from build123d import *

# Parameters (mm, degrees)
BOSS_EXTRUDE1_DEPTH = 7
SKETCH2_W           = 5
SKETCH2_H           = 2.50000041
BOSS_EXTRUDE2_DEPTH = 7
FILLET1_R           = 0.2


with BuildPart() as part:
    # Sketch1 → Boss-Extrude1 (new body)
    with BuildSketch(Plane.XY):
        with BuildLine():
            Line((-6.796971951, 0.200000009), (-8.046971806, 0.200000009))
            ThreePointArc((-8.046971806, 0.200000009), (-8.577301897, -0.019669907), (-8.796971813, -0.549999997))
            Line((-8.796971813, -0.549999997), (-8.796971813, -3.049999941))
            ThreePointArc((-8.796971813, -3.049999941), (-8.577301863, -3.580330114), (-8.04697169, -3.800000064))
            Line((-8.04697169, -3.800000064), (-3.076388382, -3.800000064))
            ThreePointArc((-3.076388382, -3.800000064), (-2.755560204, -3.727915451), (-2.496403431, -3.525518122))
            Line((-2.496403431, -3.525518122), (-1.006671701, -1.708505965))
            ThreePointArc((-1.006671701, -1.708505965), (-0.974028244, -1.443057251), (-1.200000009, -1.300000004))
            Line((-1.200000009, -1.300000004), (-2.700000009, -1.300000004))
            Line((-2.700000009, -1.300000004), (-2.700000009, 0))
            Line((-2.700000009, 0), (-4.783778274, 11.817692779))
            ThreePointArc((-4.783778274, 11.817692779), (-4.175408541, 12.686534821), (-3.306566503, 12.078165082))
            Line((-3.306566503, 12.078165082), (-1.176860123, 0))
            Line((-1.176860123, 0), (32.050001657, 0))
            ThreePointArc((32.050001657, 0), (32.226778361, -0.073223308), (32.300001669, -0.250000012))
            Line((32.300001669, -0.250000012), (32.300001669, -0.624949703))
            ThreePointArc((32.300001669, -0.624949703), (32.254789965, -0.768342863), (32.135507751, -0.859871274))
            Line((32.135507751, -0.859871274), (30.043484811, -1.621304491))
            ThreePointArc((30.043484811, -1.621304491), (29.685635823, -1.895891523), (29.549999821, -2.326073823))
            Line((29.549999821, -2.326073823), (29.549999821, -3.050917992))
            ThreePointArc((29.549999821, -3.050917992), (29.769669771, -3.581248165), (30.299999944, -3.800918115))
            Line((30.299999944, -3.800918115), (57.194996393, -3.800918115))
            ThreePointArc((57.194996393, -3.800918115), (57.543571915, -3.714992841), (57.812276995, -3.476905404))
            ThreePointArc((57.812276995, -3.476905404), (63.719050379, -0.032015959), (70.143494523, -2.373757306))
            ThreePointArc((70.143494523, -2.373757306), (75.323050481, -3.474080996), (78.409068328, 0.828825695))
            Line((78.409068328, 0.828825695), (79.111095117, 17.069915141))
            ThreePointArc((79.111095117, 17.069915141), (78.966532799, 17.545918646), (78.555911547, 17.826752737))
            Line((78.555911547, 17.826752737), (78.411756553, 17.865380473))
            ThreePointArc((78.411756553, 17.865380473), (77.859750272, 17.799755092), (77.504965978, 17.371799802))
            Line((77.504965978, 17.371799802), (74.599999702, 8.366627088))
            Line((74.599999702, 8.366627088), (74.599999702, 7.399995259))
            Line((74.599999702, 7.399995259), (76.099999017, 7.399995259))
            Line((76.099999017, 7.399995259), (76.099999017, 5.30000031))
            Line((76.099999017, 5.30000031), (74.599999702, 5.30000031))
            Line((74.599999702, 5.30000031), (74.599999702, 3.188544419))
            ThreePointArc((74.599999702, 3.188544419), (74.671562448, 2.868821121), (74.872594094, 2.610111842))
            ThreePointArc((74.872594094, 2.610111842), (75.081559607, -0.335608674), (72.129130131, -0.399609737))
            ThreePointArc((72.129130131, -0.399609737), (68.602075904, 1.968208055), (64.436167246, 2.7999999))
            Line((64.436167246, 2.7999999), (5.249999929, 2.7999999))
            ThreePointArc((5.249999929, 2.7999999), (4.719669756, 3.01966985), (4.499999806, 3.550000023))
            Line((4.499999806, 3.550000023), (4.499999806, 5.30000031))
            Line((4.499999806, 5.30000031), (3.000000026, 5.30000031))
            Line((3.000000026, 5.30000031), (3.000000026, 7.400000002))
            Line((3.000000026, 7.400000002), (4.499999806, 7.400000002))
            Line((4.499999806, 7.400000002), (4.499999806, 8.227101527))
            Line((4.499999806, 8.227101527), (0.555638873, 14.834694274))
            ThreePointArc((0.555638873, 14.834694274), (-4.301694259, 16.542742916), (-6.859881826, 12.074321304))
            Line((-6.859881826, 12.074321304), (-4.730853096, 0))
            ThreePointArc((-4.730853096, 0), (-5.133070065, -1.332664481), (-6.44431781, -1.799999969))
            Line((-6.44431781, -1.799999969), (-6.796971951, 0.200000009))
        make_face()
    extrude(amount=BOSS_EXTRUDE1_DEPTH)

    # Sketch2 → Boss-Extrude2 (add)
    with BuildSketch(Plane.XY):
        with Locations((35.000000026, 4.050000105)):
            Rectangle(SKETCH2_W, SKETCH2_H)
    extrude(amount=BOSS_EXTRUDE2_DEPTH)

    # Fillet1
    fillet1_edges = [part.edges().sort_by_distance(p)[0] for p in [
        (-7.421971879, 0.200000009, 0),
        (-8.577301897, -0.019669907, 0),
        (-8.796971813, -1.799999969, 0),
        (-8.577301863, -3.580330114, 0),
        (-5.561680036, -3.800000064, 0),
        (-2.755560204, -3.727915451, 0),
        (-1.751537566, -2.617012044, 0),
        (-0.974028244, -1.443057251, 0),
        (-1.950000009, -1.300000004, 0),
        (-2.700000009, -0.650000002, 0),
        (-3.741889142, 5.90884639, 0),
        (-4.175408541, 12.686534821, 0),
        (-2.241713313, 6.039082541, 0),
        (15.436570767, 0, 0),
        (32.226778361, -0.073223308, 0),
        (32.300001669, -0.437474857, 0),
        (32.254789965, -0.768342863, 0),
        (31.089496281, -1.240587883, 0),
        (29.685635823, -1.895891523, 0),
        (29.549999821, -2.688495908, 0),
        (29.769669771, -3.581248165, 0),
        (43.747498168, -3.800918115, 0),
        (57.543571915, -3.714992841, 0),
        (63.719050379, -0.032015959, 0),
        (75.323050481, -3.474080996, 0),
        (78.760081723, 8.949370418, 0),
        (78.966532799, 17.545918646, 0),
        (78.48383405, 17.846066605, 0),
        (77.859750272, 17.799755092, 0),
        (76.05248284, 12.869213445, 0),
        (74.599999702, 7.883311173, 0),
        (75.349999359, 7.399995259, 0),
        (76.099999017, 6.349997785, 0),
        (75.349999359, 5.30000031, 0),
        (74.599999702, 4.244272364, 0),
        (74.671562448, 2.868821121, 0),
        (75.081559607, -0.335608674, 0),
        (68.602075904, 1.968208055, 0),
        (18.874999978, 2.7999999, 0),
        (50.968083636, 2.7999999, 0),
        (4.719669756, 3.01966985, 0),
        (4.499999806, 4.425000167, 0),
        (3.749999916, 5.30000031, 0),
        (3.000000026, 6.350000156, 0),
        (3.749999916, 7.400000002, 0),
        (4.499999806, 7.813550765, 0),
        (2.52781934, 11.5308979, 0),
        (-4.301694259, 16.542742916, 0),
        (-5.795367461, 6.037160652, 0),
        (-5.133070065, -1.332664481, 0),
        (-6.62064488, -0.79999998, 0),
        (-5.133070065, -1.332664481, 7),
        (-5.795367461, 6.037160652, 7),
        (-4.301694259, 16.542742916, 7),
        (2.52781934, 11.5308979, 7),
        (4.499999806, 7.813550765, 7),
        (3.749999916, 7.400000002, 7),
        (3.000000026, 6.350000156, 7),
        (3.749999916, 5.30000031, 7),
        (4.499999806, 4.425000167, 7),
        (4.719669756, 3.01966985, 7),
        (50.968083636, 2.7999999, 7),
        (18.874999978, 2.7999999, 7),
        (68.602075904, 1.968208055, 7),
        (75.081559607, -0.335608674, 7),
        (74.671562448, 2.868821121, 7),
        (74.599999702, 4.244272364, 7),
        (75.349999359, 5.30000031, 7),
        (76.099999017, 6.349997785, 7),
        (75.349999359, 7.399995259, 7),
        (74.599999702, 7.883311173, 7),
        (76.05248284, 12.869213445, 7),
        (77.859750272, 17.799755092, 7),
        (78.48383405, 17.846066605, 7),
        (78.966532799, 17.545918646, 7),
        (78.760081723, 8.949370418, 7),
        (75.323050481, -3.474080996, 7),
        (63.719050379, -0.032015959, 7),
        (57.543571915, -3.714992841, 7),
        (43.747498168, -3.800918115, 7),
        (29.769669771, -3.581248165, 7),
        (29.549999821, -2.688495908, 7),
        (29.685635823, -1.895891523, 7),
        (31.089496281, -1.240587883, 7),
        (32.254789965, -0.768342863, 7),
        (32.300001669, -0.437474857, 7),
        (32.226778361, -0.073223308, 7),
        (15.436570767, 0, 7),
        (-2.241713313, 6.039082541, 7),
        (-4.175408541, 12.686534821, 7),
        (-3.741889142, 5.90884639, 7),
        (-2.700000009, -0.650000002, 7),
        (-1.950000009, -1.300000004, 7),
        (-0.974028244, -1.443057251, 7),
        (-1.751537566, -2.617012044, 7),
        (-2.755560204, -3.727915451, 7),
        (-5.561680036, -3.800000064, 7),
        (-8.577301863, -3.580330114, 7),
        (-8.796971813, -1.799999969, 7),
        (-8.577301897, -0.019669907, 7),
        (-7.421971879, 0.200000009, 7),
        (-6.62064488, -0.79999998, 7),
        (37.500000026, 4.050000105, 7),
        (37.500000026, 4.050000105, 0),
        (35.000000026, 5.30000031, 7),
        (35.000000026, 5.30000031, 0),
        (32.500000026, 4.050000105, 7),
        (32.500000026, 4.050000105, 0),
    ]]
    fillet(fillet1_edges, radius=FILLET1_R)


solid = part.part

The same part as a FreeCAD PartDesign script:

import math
import FreeCAD as App
import Part
import Sketcher
Q = App.Units.Quantity


def edges_at(feature, points):
    """Names of the edges that pass closest to the given points."""
    edges = feature.Shape.Edges
    near = lambda p: min(range(len(edges)), key=lambda i: edges[i].distToShape(Part.Vertex(*p))[0])
    return sorted({f"Edge{near(p) + 1}" for p in points})

doc = App.newDocument("Part")
body = doc.addObject("PartDesign::Body", "Body")

# Sketch on XY plane
sketch1 = doc.addObject("Sketcher::SketchObject", "Sketch")
body.addObject(sketch1)
sketch1.AttachmentSupport = (doc.XY_Plane, [""])
sketch1.MapMode = "FlatFace"
sketch1.addGeometry([
    Part.LineSegment(App.Vector(-6.8, 0.2, 0), App.Vector(-8.05, 0.2, 0)),  # 0
    Part.ArcOfCircle(Part.Circle(App.Vector(-8.05, -0.55, 0), App.Vector(0, 0, 1), 0.75), math.radians(90), math.radians(180)),  # 1
    Part.LineSegment(App.Vector(-8.8, -0.55, 0), App.Vector(-8.8, -3.05, 0)),  # 2
    Part.ArcOfCircle(Part.Circle(App.Vector(-8.05, -3.05, 0), App.Vector(0, 0, 1), 0.75), math.radians(180), math.radians(270)),  # 3
    Part.LineSegment(App.Vector(-8.05, -3.8, 0), App.Vector(-3.08, -3.8, 0)),  # 4
    Part.ArcOfCircle(Part.Circle(App.Vector(-3.08, -3.05, 0), App.Vector(0, 0, 1), 0.75), math.radians(-90), math.radians(-39)),  # 5
    Part.LineSegment(App.Vector(-2.5, -3.53, 0), App.Vector(-1.01, -1.71, 0)),  # 6
    Part.ArcOfCircle(Part.Circle(App.Vector(-1.2, -1.55, 0), App.Vector(0, 0, 1), 0.25), math.radians(-39), math.radians(90)),  # 7
    Part.LineSegment(App.Vector(-1.2, -1.3, 0), App.Vector(-2.7, -1.3, 0)),  # 8
    Part.LineSegment(App.Vector(-2.7, -1.3, 0), App.Vector(-2.7, 0, 0)),  # 9
    Part.LineSegment(App.Vector(-2.7, 0, 0), App.Vector(-4.78, 11.82, 0)),  # 10
    Part.ArcOfCircle(Part.Circle(App.Vector(-4.05, 11.95, 0), App.Vector(0, 0, 1), 0.75), math.radians(10), math.radians(190)),  # 11
    Part.LineSegment(App.Vector(-3.31, 12.08, 0), App.Vector(-1.18, 0, 0)),  # 12
    Part.LineSegment(App.Vector(-1.18, 0, 0), App.Vector(32.05, 0, 0)),  # 13
    Part.ArcOfCircle(Part.Circle(App.Vector(32.05, -0.25, 0), App.Vector(0, 0, 1), 0.25), math.radians(0), math.radians(90)),  # 14
    Part.LineSegment(App.Vector(32.3, -0.25, 0), App.Vector(32.3, -0.62, 0)),  # 15
    Part.ArcOfCircle(Part.Circle(App.Vector(32.05, -0.62, 0), App.Vector(0, 0, 1), 0.25), math.radians(-70), math.radians(0)),  # 16
    Part.LineSegment(App.Vector(32.14, -0.86, 0), App.Vector(30.04, -1.62, 0)),  # 17
    Part.ArcOfCircle(Part.Circle(App.Vector(30.3, -2.33, 0), App.Vector(0, 0, 1), 0.75), math.radians(110), math.radians(180)),  # 18
    Part.LineSegment(App.Vector(29.55, -2.33, 0), App.Vector(29.55, -3.05, 0)),  # 19
    Part.ArcOfCircle(Part.Circle(App.Vector(30.3, -3.05, 0), App.Vector(0, 0, 1), 0.75), math.radians(180), math.radians(270)),  # 20
    Part.LineSegment(App.Vector(30.3, -3.8, 0), App.Vector(57.19, -3.8, 0)),  # 21
    Part.ArcOfCircle(Part.Circle(App.Vector(57.19, -3.05, 0), App.Vector(0, 0, 1), 0.75), math.radians(-90), math.radians(-35)),  # 22
    Part.ArcOfCircle(Part.Circle(App.Vector(64.44, -8.05, 0), App.Vector(0, 0, 1), 8.05), math.radians(45), math.radians(145)),  # 23
    Part.ArcOfCircle(Part.Circle(App.Vector(73.57, 1.04, 0), App.Vector(0, 0, 1), 4.84), math.radians(-135), math.radians(-2)),  # 24
    Part.LineSegment(App.Vector(78.41, 0.83, 0), App.Vector(79.11, 17.07, 0)),  # 25
    Part.ArcOfCircle(Part.Circle(App.Vector(78.36, 17.1, 0), App.Vector(0, 0, 1), 0.75), math.radians(-2), math.radians(75)),  # 26
    Part.LineSegment(App.Vector(78.56, 17.83, 0), App.Vector(78.41, 17.87, 0)),  # 27
    Part.ArcOfCircle(Part.Circle(App.Vector(78.22, 17.14, 0), App.Vector(0, 0, 1), 0.75), math.radians(75), math.radians(162)),  # 28
    Part.LineSegment(App.Vector(77.5, 17.37, 0), App.Vector(74.6, 8.37, 0)),  # 29
    Part.LineSegment(App.Vector(74.6, 8.37, 0), App.Vector(74.6, 7.4, 0)),  # 30
    Part.LineSegment(App.Vector(74.6, 7.4, 0), App.Vector(76.1, 7.4, 0)),  # 31
    Part.LineSegment(App.Vector(76.1, 7.4, 0), App.Vector(76.1, 5.3, 0)),  # 32
    Part.LineSegment(App.Vector(76.1, 5.3, 0), App.Vector(74.6, 5.3, 0)),  # 33
    Part.LineSegment(App.Vector(74.6, 5.3, 0), App.Vector(74.6, 3.19, 0)),  # 34
    Part.ArcOfCircle(Part.Circle(App.Vector(75.35, 3.19, 0), App.Vector(0, 0, 1), 0.75), math.radians(180), math.radians(230)),  # 35
    Part.ArcOfCircle(Part.Circle(App.Vector(73.57, 1.04, 0), App.Vector(0, 0, 1), 2.04), math.radians(-135), math.radians(50)),  # 36
    Part.ArcOfCircle(Part.Circle(App.Vector(64.44, -8.05, 0), App.Vector(0, 0, 1), 10.85), math.radians(45), math.radians(90)),  # 37
    Part.LineSegment(App.Vector(64.44, 2.8, 0), App.Vector(5.25, 2.8, 0)),  # 38
    Part.ArcOfCircle(Part.Circle(App.Vector(5.25, 3.55, 0), App.Vector(0, 0, 1), 0.75), math.radians(180), math.radians(270)),  # 39
    Part.LineSegment(App.Vector(4.5, 3.55, 0), App.Vector(4.5, 5.3, 0)),  # 40
    Part.LineSegment(App.Vector(4.5, 5.3, 0), App.Vector(3, 5.3, 0)),  # 41
    Part.LineSegment(App.Vector(3, 5.3, 0), App.Vector(3, 7.4, 0)),  # 42
    Part.LineSegment(App.Vector(3, 7.4, 0), App.Vector(4.5, 7.4, 0)),  # 43
    Part.LineSegment(App.Vector(4.5, 7.4, 0), App.Vector(4.5, 8.23, 0)),  # 44
    Part.LineSegment(App.Vector(4.5, 8.23, 0), App.Vector(0.56, 14.83, 0)),  # 45
    Part.ArcOfCircle(Part.Circle(App.Vector(-2.9, 12.77, 0), App.Vector(0, 0, 1), 4.02), math.radians(31), math.radians(190)),  # 46
    Part.LineSegment(App.Vector(-6.86, 12.07, 0), App.Vector(-4.73, 0, 0)),  # 47
    Part.ArcOfCircle(Part.Circle(App.Vector(-6.25, -0.27, 0), App.Vector(0, 0, 1), 1.54), math.radians(-97), math.radians(10)),  # 48
    Part.LineSegment(App.Vector(-6.44, -1.8, 0), App.Vector(-6.8, 0.2, 0)),  # 49
], False)
sketch1.addConstraint([
    Sketcher.Constraint("Tangent", 0, 2, 1, 1),
    Sketcher.Constraint("Tangent", 1, 2, 2, 1),
    Sketcher.Constraint("Tangent", 2, 2, 3, 1),
    Sketcher.Constraint("Tangent", 3, 2, 4, 1),
    Sketcher.Constraint("Tangent", 4, 2, 5, 1),
    Sketcher.Constraint("Tangent", 5, 2, 6, 1),
    Sketcher.Constraint("Tangent", 6, 2, 7, 1),
    Sketcher.Constraint("Tangent", 7, 2, 8, 1),
    Sketcher.Constraint("Coincident", 8, 2, 9, 1),
    Sketcher.Constraint("Coincident", 9, 2, 10, 1),
    Sketcher.Constraint("Tangent", 10, 2, 11, 2),
    Sketcher.Constraint("Tangent", 11, 1, 12, 1),
    Sketcher.Constraint("Coincident", 12, 2, 13, 1),
    Sketcher.Constraint("Tangent", 13, 2, 14, 2),
    Sketcher.Constraint("Tangent", 14, 1, 15, 1),
    Sketcher.Constraint("Tangent", 15, 2, 16, 2),
    Sketcher.Constraint("Tangent", 16, 1, 17, 1),
    Sketcher.Constraint("Tangent", 17, 2, 18, 1),
    Sketcher.Constraint("Tangent", 18, 2, 19, 1),
    Sketcher.Constraint("Tangent", 19, 2, 20, 1),
    Sketcher.Constraint("Tangent", 20, 2, 21, 1),
    Sketcher.Constraint("Tangent", 21, 2, 22, 1),
    Sketcher.Constraint("Tangent", 22, 2, 23, 2),
    Sketcher.Constraint("Tangent", 23, 1, 24, 1),
    Sketcher.Constraint("Tangent", 24, 2, 25, 1),
    Sketcher.Constraint("Tangent", 25, 2, 26, 1),
    Sketcher.Constraint("Tangent", 26, 2, 27, 1),
    Sketcher.Constraint("Tangent", 27, 2, 28, 1),
    Sketcher.Constraint("Tangent", 28, 2, 29, 1),
    Sketcher.Constraint("Coincident", 29, 2, 30, 1),
    Sketcher.Constraint("Coincident", 30, 2, 31, 1),
    Sketcher.Constraint("Coincident", 31, 2, 32, 1),
    Sketcher.Constraint("Coincident", 32, 2, 33, 1),
    Sketcher.Constraint("Coincident", 33, 2, 34, 1),
    Sketcher.Constraint("Tangent", 34, 2, 35, 1),
    Sketcher.Constraint("Tangent", 35, 2, 36, 2),
    Sketcher.Constraint("Tangent", 36, 1, 37, 1),
    Sketcher.Constraint("Tangent", 37, 2, 38, 1),
    Sketcher.Constraint("Tangent", 38, 2, 39, 2),
    Sketcher.Constraint("Tangent", 39, 1, 40, 1),
    Sketcher.Constraint("Coincident", 40, 2, 41, 1),
    Sketcher.Constraint("Coincident", 41, 2, 42, 1),
    Sketcher.Constraint("Coincident", 42, 2, 43, 1),
    Sketcher.Constraint("Coincident", 43, 2, 44, 1),
    Sketcher.Constraint("Coincident", 44, 2, 45, 1),
    Sketcher.Constraint("Tangent", 45, 2, 46, 1),
    Sketcher.Constraint("Tangent", 46, 2, 47, 1),
    Sketcher.Constraint("Tangent", 47, 2, 48, 2),
    Sketcher.Constraint("Coincident", 48, 1, 49, 1),
    Sketcher.Constraint("Coincident", 49, 2, 0, 1),
    Sketcher.Constraint("Horizontal", 0),
    Sketcher.Constraint("Vertical", 2),
    Sketcher.Constraint("Horizontal", 4),
    Sketcher.Constraint("Horizontal", 8),
    Sketcher.Constraint("Vertical", 9),
    Sketcher.Constraint("Horizontal", 13),
    Sketcher.Constraint("Vertical", 15),
    Sketcher.Constraint("Vertical", 19),
    Sketcher.Constraint("Horizontal", 21),
    Sketcher.Constraint("Vertical", 30),
    Sketcher.Constraint("Horizontal", 31),
    Sketcher.Constraint("Vertical", 32),
    Sketcher.Constraint("Horizontal", 33),
    Sketcher.Constraint("Vertical", 34),
    Sketcher.Constraint("Horizontal", 38),
    Sketcher.Constraint("Vertical", 40),
    Sketcher.Constraint("Horizontal", 41),
    Sketcher.Constraint("Vertical", 42),
    Sketcher.Constraint("Horizontal", 43),
    Sketcher.Constraint("Vertical", 44),
    Sketcher.Constraint("Coincident", 36, 3, 24, 3),
    Sketcher.Constraint("Equal", 1, 3),
    Sketcher.Constraint("Equal", 3, 5),
    Sketcher.Constraint("Equal", 5, 11),
    Sketcher.Constraint("Equal", 7, 14),
    Sketcher.Constraint("Equal", 14, 16),
    Sketcher.Constraint("Equal", 11, 18),
    Sketcher.Constraint("Equal", 18, 20),
    Sketcher.Constraint("Equal", 20, 22),
    Sketcher.Constraint("Equal", 22, 35),
    Sketcher.Constraint("Equal", 35, 39),
    Sketcher.Constraint("PointOnObject", 9, 2, -1),
    Sketcher.Constraint("PointOnObject", 12, 2, -1),
    Sketcher.Constraint("PointOnObject", 47, 2, -1),
    Sketcher.Constraint("Parallel", 10, 12),
    Sketcher.Constraint("Parallel", 12, 47),
    Sketcher.Constraint("Parallel", 47, 49),
    Sketcher.Constraint("Horizontal", 33, 2, 40, 2),
    Sketcher.Constraint("Vertical", 23, 3, 37, 3),
    Sketcher.Constraint("Vertical", 30, 2, 33, 2),
    Sketcher.Constraint("Vertical", 40, 2, 43, 2),
    Sketcher.Constraint("Equal", 8, 31),
    Sketcher.Constraint("Equal", 33, 41),
    Sketcher.Constraint("Angle", 10, Q("100.000001 deg")),
    Sketcher.Constraint("Radius", 1, 0.75),
    Sketcher.Constraint("Radius", 7, 0.25),
    Sketcher.Constraint("Distance", 10, 12.0),
    Sketcher.Constraint("DistanceX", 8, 2, 8, 1, 1.5),
    Sketcher.Constraint("DistanceY", 2, 2, 2, 1, 2.5),
    Sketcher.Constraint("DistanceY", 9, 1, 9, 2, 1.3),
    Sketcher.Constraint("DistanceY", 42, 1, 42, 2, 2.1),
    Sketcher.Constraint("DistanceX", -1, 1, 41, 2, 3.0),
    Sketcher.Constraint("DistanceX", 0, 2, 0, 1, 1.25),
    Sketcher.Constraint("DistanceY", 40, 1, 40, 2, 1.75),
    Sketcher.Constraint("DistanceX", 7, 3, -1, 1, 1.2),
    Sketcher.Constraint("DistanceX", -1, 1, 18, 3, 30.3),
    Sketcher.Constraint("DistanceY", -1, 1, 0, 2, 0.2),
    Sketcher.Constraint("DistanceX", -1, 1, 14, 1, 32.300002),
    Sketcher.Constraint("DistanceX", -1, 1, 29, 2, 74.6),
    Sketcher.Constraint("DistanceY", -1, 1, 32, 2, 5.3),
    Sketcher.Constraint("DistanceY", 48, 1, -1, 1, 1.8),
    Sketcher.Constraint("Radius", 24, 4.838702),
    Sketcher.Constraint("Radius", 37, 10.84807),
    Sketcher.Constraint("Radius", 46, 4.022618),
    Sketcher.Constraint("Radius", 48, 1.54399),
    Sketcher.Constraint("DistanceY", 44, 1, 44, 2, 0.827102),
    Sketcher.Constraint("Radius", 23, 8.048077),
    Sketcher.Constraint("Radius", 26, 0.750006),
    Sketcher.Constraint("Radius", 28, 0.749083),
    Sketcher.Constraint("Radius", 36, 2.038697),
    Sketcher.Constraint("DistanceY", 15, 2, 15, 1, 0.37495),
    Sketcher.Constraint("DistanceY", 30, 2, 30, 1, 0.966632),
    Sketcher.Constraint("DistanceY", -1, 1, 28, 2, 17.3718),
    Sketcher.Constraint("Distance", 27, 0.149241),
    Sketcher.Constraint("Distance", 45, 7.69534),
    Sketcher.Constraint("DistanceX", 4, 1, 4, 2, 4.970583),
    Sketcher.Constraint("DistanceX", 21, 1, 21, 2, 26.894996),
    Sketcher.Constraint("DistanceX", 38, 2, 38, 1, 59.186167),
    Sketcher.Constraint("DistanceY", 19, 2, 19, 1, 0.724844),
    Sketcher.Constraint("DistanceY", 32, 2, 32, 1, 2.099995),
    Sketcher.Constraint("DistanceY", 34, 2, 34, 1, 2.111456),
    Sketcher.Constraint("DistanceX", 1, 3, -1, 1, 8.046972),
    Sketcher.Constraint("DistanceX", -1, 1, 26, 3, 78.361788),
    Sketcher.Constraint("DistanceX", -1, 1, 26, 2, 78.555912),
])
pad1 = doc.addObject("PartDesign::Pad", "Pad")
body.addObject(pad1)
pad1.Profile = sketch1
pad1.Length = 7

# Sketch on XY plane
sketch2 = doc.addObject("Sketcher::SketchObject", "Sketch001")
body.addObject(sketch2)
sketch2.AttachmentSupport = (doc.XY_Plane, [""])
sketch2.MapMode = "FlatFace"
sketch2.addGeometry([
    Part.LineSegment(App.Vector(32.5, 5.3, 0), App.Vector(32.5, 2.8, 0)),
    Part.LineSegment(App.Vector(32.5, 2.8, 0), App.Vector(37.5, 2.8, 0)),
    Part.LineSegment(App.Vector(37.5, 2.8, 0), App.Vector(37.5, 5.3, 0)),
    Part.LineSegment(App.Vector(37.5, 5.3, 0), App.Vector(32.5, 5.3, 0)),
], False)
sketch2.addConstraint([
    Sketcher.Constraint("Coincident", 0, 2, 1, 1),
    Sketcher.Constraint("Coincident", 1, 2, 2, 1),
    Sketcher.Constraint("Coincident", 2, 2, 3, 1),
    Sketcher.Constraint("Coincident", 3, 2, 0, 1),
    Sketcher.Constraint("Vertical", 0),
    Sketcher.Constraint("Horizontal", 1),
    Sketcher.Constraint("Vertical", 2),
    Sketcher.Constraint("Horizontal", 3),
    Sketcher.Constraint("DistanceX", 1, 1, 1, 2, 5.0),
    Sketcher.Constraint("DistanceY", 0, 2, 0, 1, 2.5),
    Sketcher.Constraint("DistanceX", -1, 1, 0, 2, 32.5),
    Sketcher.Constraint("DistanceY", -1, 1, 0, 2, 2.8),
])
pad2 = doc.addObject("PartDesign::Pad", "Pad001")
body.addObject(pad2)
pad2.Profile = sketch2
pad2.Length = 7
doc.recompute()

fillet = doc.addObject("PartDesign::Fillet", "Fillet")
body.addObject(fillet)
fillet.Base = (pad2, edges_at(pad2, [
    (-7.422, 0.2, 0),
    (-8.577, -0.02, 0),
    (-8.797, -1.8, 0),
    (-8.577, -3.58, 0),
    (-5.562, -3.8, 0),
    (-2.756, -3.728, 0),
    (-1.752, -2.617, 0),
    (-0.974, -1.443, 0),
    (-1.95, -1.3, 0),
    (-2.7, -0.65, 0),
    (-3.742, 5.909, 0),
    (-4.175, 12.687, 0),
    (-2.242, 6.039, 0),
    (15.437, 0, 0),
    (32.227, -0.073, 0),
    (32.3, -0.437, 0),
    (32.255, -0.768, 0),
    (31.089, -1.241, 0),
    (29.686, -1.896, 0),
    (29.55, -2.688, 0),
    (29.77, -3.581, 0),
    (43.747, -3.801, 0),
    (57.544, -3.715, 0),
    (63.719, -0.032, 0),
    (75.323, -3.474, 0),
    (78.76, 8.949, 0),
    (78.967, 17.546, 0),
    (78.484, 17.846, 0),
    (77.86, 17.8, 0),
    (76.052, 12.869, 0),
    (74.6, 7.883, 0),
    (75.35, 7.4, 0),
    (76.1, 6.35, 0),
    (75.35, 5.3, 0),
    (74.6, 4.244, 0),
    (74.672, 2.869, 0),
    (75.082, -0.336, 0),
    (68.602, 1.968, 0),
    (18.875, 2.8, 0),
    (50.968, 2.8, 0),
    (4.72, 3.02, 0),
    (4.5, 4.425, 0),
    (3.75, 5.3, 0),
    (3, 6.35, 0),
    (3.75, 7.4, 0),
    (4.5, 7.814, 0),
    (2.528, 11.531, 0),
    (-4.302, 16.543, 0),
    (-5.795, 6.037, 0),
    (-5.133, -1.333, 0),
    (-6.621, -0.8, 0),
    (-5.133, -1.333, 7),
    (-5.795, 6.037, 7),
    (-4.302, 16.543, 7),
    (2.528, 11.531, 7),
    (4.5, 7.814, 7),
    (3.75, 7.4, 7),
    (3, 6.35, 7),
    (3.75, 5.3, 7),
    (4.5, 4.425, 7),
    (4.72, 3.02, 7),
    (50.968, 2.8, 7),
    (18.875, 2.8, 7),
    (68.602, 1.968, 7),
    (75.082, -0.336, 7),
    (74.672, 2.869, 7),
    (74.6, 4.244, 7),
    (75.35, 5.3, 7),
    (76.1, 6.35, 7),
    (75.35, 7.4, 7),
    (74.6, 7.883, 7),
    (76.052, 12.869, 7),
    (77.86, 17.8, 7),
    (78.484, 17.846, 7),
    (78.967, 17.546, 7),
    (78.76, 8.949, 7),
    (75.323, -3.474, 7),
    (63.719, -0.032, 7),
    (57.544, -3.715, 7),
    (43.747, -3.801, 7),
    (29.77, -3.581, 7),
    (29.55, -2.688, 7),
    (29.686, -1.896, 7),
    (31.089, -1.241, 7),
    (32.255, -0.768, 7),
    (32.3, -0.437, 7),
    (32.227, -0.073, 7),
    (15.437, 0, 7),
    (-2.242, 6.039, 7),
    (-4.175, 12.687, 7),
    (-3.742, 5.909, 7),
    (-2.7, -0.65, 7),
    (-1.95, -1.3, 7),
    (-0.974, -1.443, 7),
    (-1.752, -2.617, 7),
    (-2.756, -3.728, 7),
    (-5.562, -3.8, 7),
    (-8.577, -3.58, 7),
    (-8.797, -1.8, 7),
    (-8.577, -0.02, 7),
    (-7.422, 0.2, 7),
    (-6.621, -0.8, 7),
    (37.5, 4.05, 7),
    (37.5, 4.05, 0),
    (35, 5.3, 7),
    (35, 5.3, 0),
    (32.5, 4.05, 7),
    (32.5, 4.05, 0),
]))
fillet.Radius = 0.2

doc.recompute()
